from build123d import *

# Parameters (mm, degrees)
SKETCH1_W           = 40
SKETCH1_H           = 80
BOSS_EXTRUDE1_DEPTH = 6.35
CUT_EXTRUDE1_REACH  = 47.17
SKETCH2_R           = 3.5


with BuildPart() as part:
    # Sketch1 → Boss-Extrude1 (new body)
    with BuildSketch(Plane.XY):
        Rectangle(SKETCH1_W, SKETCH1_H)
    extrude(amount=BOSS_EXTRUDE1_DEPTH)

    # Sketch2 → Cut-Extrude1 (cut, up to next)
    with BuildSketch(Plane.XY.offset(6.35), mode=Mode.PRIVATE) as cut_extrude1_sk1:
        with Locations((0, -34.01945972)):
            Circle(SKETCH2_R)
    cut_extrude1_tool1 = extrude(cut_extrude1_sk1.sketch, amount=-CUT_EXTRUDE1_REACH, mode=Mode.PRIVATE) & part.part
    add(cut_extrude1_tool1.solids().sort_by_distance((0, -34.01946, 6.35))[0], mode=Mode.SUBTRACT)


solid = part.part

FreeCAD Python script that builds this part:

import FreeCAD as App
import Part
import Sketcher

V = App.Vector


def add_polygon(sketch, points):
    """Adds a closed chain of lines whose ends are joined by coincident constraints."""
    first, n = sketch.GeometryCount, len(points)
    for a, b in zip(points, points[1:] + points[:1]):
        sketch.addGeometry(Part.LineSegment(App.Vector(*a, 0), App.Vector(*b, 0)), False)
    for i in range(n):
        sketch.addConstraint(Sketcher.Constraint("Coincident", first + i, 2, first + (i + 1) % n, 1))

doc = App.newDocument("Part")
params = doc.addObject("Spreadsheet::Sheet", "Params")
for row, (alias, value) in enumerate([
    ("sketch1_width", "40 mm"),
    ("sketch1_height", "80 mm"),
    ("pad1_length", "6.35 mm"),
    ("sketch2_diameter", "7 mm"),
], start=1):
    params.set(f"A{row}", alias)
    params.set(f"B{row}", "=" + value)
    params.setAlias(f"B{row}", alias)

body = doc.addObject("PartDesign::Body", "Body")

# Sketch on XY plane
sketch1 = body.newObject("Sketcher::SketchObject", "Sketch")
sketch1.AttachmentSupport = (doc.getObject("XY_Plane"), [""])
sketch1.MapMode = "FlatFace"
add_polygon(sketch1, [(-20, 40), (-20, -40), (20, -40), (20, 40)])  # lines 0-3
sketch1.addConstraint(Sketcher.Constraint("Vertical", 0))
sketch1.addConstraint(Sketcher.Constraint("Horizontal", 1))
sketch1.addConstraint(Sketcher.Constraint("Vertical", 2))
sketch1.addConstraint(Sketcher.Constraint("Horizontal", 3))
sketch1.addConstraint(Sketcher.Constraint("Symmetric", 0, 2, 2, 2, -1, 1))
sketch1.addConstraint(Sketcher.Constraint("DistanceX", 1, 1, 1, 2, 40.0))
sketch1.addConstraint(Sketcher.Constraint("DistanceY", 0, 2, 0, 1, 80.0))
sketch1.setExpression("Constraints[9]", "Params.sketch1_width")
sketch1.setExpression("Constraints[10]", "Params.sketch1_height")
pad1 = body.newObject("PartDesign::Pad", "Pad")
pad1.Profile = sketch1
pad1.setExpression("Length", "Params.pad1_length")

# Sketch on XY plane
sketch2 = body.newObject("Sketcher::SketchObject", "Sketch001")
sketch2.AttachmentSupport = (doc.getObject("XY_Plane"), [""])
sketch2.MapMode = "FlatFace"
sketch2.AttachmentOffset = App.Placement(V(0, 0, 6.35), App.Rotation())
sketch2.addGeometry(Part.Circle(V(0, -34, 0), V(0, 0, 1), 3.5), False)
sketch2.addConstraint(Sketcher.Constraint("PointOnObject", 0, 3, -2))
sketch2.addConstraint(Sketcher.Constraint("Diameter", 0, 7.0))
sketch2.addConstraint(Sketcher.Constraint("DistanceY", 0, 3, -1, 1, 34.01946))
sketch2.setExpression("Constraints[1]", "Params.sketch2_diameter")
pocket1 = body.newObject("PartDesign::Pocket", "Pocket")
pocket1.Profile = sketch2
pocket1.Type = "UpToFirst"

doc.recompute()
